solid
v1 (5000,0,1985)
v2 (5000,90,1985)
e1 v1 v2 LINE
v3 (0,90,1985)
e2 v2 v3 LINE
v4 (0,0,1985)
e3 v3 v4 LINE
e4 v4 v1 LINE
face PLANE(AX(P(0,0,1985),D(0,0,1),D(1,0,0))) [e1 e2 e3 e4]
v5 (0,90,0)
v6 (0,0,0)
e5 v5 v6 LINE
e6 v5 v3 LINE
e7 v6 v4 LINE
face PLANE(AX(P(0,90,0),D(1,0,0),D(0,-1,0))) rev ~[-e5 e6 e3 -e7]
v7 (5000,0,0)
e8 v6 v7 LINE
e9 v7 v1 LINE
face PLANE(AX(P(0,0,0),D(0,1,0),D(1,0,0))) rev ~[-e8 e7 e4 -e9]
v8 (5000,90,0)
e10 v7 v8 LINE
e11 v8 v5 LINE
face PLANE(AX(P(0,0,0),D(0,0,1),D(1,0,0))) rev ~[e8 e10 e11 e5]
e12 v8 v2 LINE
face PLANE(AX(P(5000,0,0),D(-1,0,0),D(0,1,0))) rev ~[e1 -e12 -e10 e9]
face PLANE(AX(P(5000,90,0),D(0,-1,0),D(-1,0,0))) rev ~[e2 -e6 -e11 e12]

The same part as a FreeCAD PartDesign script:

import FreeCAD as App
import Part
import Sketcher
Q = App.Units.Quantity


def add_polygon(sketch, points):
    """Adds a closed chain of lines whose ends are joined by coincident constraints."""
    first, n = sketch.GeometryCount, len(points)
    for a, b in zip(points, points[1:] + points[:1]):
        sketch.addGeometry(Part.LineSegment(App.Vector(*a, 0), App.Vector(*b, 0)), False)
    for i in range(n):
        sketch.addConstraint(Sketcher.Constraint("Coincident", first + i, 2, first + (i + 1) % n, 1))

doc = App.newDocument("Part")
params = doc.addObject("Spreadsheet::Sheet", "Params")
for row, (alias, value) in enumerate([
    ("sketch1_width", "5000 mm"),
    ("sketch1_height", "90 mm"),
    ("pad1_length", "1985 mm"),
], start=1):
    params.set(f"A{row}", alias)
    params.set(f"B{row}", "=" + value)
    params.setAlias(f"B{row}", alias)

body = doc.addObject("PartDesign::Body", "Body")

# Sketch on XY plane
sketch1 = body.newObject("Sketcher::SketchObject", "Sketch")
sketch1.AttachmentSupport = (doc.getObject("XY_Plane"), [""])
sketch1.MapMode = "FlatFace"
add_polygon(sketch1, [(0, 90), (0, 0), (5000, 0), (5000, 90)])  # lines 0-3
sketch1.addConstraint(Sketcher.Constraint("Vertical", 0))
sketch1.addConstraint(Sketcher.Constraint("Horizontal", 1))
sketch1.addConstraint(Sketcher.Constraint("Vertical", 2))
sketch1.addConstraint(Sketcher.Constraint("Horizontal", 3))
sketch1.addConstraint(Sketcher.Constraint("Coincident", 0, 2, -1, 1))
sketch1.addConstraint(Sketcher.Constraint("DistanceX", 1, 1, 1, 2, Q("5000 mm")))
sketch1.addConstraint(Sketcher.Constraint("DistanceY", 0, 2, 0, 1, Q("90 mm")))
sketch1.setExpression("Constraints[9]", "Params.sketch1_width")
sketch1.setExpression("Constraints[10]", "Params.sketch1_height")
pad1 = body.newObject("PartDesign::Pad", "Pad")
pad1.Profile = sketch1
pad1.setExpression("Length", "Params.pad1_length")

doc.recompute()
